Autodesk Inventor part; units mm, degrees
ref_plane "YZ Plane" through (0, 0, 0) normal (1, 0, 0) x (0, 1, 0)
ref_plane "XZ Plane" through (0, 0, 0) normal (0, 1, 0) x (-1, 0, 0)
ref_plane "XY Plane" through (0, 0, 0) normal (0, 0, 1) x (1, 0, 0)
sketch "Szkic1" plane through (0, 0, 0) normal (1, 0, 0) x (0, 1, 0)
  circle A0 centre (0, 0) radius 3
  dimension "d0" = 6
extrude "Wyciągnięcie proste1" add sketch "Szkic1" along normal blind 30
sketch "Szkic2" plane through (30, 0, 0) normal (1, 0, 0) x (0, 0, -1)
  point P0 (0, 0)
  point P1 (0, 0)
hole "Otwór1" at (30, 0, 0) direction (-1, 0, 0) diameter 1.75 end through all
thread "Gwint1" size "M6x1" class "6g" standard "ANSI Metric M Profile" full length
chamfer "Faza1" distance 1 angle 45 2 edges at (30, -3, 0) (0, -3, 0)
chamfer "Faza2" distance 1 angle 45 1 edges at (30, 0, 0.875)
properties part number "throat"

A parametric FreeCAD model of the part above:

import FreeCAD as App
import Part
import Sketcher


def edges_at(feature, points):
    """Names of the edges that pass closest to the given points."""
    edges = feature.Shape.Edges
    near = lambda p: min(range(len(edges)), key=lambda i: edges[i].distToShape(Part.Vertex(*p))[0])
    return sorted({f"Edge{near(p) + 1}" for p in points})

doc = App.newDocument("Part")
body = doc.addObject("PartDesign::Body", "Body")

# Sketch on YZ plane
sketch1 = body.newObject("Sketcher::SketchObject", "Sketch")
sketch1.AttachmentSupport = (doc.getObject("YZ_Plane"), [""])
sketch1.MapMode = "FlatFace"
sketch1.addGeometry(Part.Circle(App.Vector(0, 0, 0), App.Vector(0, 0, 1), 3), False)
sketch1.addConstraint(Sketcher.Constraint("Coincident", 0, 3, -1, 1))
sketch1.addConstraint(Sketcher.Constraint("Diameter", 0, 6.0))
pad1 = body.newObject("PartDesign::Pad", "Pad")
pad1.Profile = sketch1
pad1.Length = 30

# Sketch on YZ plane
sketch2 = body.newObject("Sketcher::SketchObject", "Sketch001")
sketch2.AttachmentSupport = (doc.getObject("YZ_Plane"), [""])
sketch2.MapMode = "FlatFace"
sketch2.AttachmentOffset = App.Placement(App.Vector(0, 0, 30), App.Rotation())
sketch2.addGeometry(Part.Circle(App.Vector(0, 0, 0), App.Vector(0, 0, 1), 0.9), False)
sketch2.addConstraint(Sketcher.Constraint("Coincident", 0, 3, -1, 1))
sketch2.addConstraint(Sketcher.Constraint("Diameter", 0, 1.75))
doc.recompute()
hole = body.newObject("PartDesign::Hole", "Hole")
hole.Profile = sketch2
hole.ThreadType = "None"
hole.Diameter = 1.75
hole.DepthType = "ThroughAll"
doc.recompute()

chamfer = body.newObject("PartDesign::Chamfer", "Chamfer")
chamfer.Base = (hole, edges_at(hole, [(30, -3, 0), (0, -3, 0)]))
chamfer.Size = 1
doc.recompute()

chamfer2 = body.newObject("PartDesign::Chamfer", "Chamfer001")
chamfer2.Base = (chamfer, edges_at(chamfer, [(30, 0, 0.875)]))
chamfer2.Size = 1

doc.recompute()
